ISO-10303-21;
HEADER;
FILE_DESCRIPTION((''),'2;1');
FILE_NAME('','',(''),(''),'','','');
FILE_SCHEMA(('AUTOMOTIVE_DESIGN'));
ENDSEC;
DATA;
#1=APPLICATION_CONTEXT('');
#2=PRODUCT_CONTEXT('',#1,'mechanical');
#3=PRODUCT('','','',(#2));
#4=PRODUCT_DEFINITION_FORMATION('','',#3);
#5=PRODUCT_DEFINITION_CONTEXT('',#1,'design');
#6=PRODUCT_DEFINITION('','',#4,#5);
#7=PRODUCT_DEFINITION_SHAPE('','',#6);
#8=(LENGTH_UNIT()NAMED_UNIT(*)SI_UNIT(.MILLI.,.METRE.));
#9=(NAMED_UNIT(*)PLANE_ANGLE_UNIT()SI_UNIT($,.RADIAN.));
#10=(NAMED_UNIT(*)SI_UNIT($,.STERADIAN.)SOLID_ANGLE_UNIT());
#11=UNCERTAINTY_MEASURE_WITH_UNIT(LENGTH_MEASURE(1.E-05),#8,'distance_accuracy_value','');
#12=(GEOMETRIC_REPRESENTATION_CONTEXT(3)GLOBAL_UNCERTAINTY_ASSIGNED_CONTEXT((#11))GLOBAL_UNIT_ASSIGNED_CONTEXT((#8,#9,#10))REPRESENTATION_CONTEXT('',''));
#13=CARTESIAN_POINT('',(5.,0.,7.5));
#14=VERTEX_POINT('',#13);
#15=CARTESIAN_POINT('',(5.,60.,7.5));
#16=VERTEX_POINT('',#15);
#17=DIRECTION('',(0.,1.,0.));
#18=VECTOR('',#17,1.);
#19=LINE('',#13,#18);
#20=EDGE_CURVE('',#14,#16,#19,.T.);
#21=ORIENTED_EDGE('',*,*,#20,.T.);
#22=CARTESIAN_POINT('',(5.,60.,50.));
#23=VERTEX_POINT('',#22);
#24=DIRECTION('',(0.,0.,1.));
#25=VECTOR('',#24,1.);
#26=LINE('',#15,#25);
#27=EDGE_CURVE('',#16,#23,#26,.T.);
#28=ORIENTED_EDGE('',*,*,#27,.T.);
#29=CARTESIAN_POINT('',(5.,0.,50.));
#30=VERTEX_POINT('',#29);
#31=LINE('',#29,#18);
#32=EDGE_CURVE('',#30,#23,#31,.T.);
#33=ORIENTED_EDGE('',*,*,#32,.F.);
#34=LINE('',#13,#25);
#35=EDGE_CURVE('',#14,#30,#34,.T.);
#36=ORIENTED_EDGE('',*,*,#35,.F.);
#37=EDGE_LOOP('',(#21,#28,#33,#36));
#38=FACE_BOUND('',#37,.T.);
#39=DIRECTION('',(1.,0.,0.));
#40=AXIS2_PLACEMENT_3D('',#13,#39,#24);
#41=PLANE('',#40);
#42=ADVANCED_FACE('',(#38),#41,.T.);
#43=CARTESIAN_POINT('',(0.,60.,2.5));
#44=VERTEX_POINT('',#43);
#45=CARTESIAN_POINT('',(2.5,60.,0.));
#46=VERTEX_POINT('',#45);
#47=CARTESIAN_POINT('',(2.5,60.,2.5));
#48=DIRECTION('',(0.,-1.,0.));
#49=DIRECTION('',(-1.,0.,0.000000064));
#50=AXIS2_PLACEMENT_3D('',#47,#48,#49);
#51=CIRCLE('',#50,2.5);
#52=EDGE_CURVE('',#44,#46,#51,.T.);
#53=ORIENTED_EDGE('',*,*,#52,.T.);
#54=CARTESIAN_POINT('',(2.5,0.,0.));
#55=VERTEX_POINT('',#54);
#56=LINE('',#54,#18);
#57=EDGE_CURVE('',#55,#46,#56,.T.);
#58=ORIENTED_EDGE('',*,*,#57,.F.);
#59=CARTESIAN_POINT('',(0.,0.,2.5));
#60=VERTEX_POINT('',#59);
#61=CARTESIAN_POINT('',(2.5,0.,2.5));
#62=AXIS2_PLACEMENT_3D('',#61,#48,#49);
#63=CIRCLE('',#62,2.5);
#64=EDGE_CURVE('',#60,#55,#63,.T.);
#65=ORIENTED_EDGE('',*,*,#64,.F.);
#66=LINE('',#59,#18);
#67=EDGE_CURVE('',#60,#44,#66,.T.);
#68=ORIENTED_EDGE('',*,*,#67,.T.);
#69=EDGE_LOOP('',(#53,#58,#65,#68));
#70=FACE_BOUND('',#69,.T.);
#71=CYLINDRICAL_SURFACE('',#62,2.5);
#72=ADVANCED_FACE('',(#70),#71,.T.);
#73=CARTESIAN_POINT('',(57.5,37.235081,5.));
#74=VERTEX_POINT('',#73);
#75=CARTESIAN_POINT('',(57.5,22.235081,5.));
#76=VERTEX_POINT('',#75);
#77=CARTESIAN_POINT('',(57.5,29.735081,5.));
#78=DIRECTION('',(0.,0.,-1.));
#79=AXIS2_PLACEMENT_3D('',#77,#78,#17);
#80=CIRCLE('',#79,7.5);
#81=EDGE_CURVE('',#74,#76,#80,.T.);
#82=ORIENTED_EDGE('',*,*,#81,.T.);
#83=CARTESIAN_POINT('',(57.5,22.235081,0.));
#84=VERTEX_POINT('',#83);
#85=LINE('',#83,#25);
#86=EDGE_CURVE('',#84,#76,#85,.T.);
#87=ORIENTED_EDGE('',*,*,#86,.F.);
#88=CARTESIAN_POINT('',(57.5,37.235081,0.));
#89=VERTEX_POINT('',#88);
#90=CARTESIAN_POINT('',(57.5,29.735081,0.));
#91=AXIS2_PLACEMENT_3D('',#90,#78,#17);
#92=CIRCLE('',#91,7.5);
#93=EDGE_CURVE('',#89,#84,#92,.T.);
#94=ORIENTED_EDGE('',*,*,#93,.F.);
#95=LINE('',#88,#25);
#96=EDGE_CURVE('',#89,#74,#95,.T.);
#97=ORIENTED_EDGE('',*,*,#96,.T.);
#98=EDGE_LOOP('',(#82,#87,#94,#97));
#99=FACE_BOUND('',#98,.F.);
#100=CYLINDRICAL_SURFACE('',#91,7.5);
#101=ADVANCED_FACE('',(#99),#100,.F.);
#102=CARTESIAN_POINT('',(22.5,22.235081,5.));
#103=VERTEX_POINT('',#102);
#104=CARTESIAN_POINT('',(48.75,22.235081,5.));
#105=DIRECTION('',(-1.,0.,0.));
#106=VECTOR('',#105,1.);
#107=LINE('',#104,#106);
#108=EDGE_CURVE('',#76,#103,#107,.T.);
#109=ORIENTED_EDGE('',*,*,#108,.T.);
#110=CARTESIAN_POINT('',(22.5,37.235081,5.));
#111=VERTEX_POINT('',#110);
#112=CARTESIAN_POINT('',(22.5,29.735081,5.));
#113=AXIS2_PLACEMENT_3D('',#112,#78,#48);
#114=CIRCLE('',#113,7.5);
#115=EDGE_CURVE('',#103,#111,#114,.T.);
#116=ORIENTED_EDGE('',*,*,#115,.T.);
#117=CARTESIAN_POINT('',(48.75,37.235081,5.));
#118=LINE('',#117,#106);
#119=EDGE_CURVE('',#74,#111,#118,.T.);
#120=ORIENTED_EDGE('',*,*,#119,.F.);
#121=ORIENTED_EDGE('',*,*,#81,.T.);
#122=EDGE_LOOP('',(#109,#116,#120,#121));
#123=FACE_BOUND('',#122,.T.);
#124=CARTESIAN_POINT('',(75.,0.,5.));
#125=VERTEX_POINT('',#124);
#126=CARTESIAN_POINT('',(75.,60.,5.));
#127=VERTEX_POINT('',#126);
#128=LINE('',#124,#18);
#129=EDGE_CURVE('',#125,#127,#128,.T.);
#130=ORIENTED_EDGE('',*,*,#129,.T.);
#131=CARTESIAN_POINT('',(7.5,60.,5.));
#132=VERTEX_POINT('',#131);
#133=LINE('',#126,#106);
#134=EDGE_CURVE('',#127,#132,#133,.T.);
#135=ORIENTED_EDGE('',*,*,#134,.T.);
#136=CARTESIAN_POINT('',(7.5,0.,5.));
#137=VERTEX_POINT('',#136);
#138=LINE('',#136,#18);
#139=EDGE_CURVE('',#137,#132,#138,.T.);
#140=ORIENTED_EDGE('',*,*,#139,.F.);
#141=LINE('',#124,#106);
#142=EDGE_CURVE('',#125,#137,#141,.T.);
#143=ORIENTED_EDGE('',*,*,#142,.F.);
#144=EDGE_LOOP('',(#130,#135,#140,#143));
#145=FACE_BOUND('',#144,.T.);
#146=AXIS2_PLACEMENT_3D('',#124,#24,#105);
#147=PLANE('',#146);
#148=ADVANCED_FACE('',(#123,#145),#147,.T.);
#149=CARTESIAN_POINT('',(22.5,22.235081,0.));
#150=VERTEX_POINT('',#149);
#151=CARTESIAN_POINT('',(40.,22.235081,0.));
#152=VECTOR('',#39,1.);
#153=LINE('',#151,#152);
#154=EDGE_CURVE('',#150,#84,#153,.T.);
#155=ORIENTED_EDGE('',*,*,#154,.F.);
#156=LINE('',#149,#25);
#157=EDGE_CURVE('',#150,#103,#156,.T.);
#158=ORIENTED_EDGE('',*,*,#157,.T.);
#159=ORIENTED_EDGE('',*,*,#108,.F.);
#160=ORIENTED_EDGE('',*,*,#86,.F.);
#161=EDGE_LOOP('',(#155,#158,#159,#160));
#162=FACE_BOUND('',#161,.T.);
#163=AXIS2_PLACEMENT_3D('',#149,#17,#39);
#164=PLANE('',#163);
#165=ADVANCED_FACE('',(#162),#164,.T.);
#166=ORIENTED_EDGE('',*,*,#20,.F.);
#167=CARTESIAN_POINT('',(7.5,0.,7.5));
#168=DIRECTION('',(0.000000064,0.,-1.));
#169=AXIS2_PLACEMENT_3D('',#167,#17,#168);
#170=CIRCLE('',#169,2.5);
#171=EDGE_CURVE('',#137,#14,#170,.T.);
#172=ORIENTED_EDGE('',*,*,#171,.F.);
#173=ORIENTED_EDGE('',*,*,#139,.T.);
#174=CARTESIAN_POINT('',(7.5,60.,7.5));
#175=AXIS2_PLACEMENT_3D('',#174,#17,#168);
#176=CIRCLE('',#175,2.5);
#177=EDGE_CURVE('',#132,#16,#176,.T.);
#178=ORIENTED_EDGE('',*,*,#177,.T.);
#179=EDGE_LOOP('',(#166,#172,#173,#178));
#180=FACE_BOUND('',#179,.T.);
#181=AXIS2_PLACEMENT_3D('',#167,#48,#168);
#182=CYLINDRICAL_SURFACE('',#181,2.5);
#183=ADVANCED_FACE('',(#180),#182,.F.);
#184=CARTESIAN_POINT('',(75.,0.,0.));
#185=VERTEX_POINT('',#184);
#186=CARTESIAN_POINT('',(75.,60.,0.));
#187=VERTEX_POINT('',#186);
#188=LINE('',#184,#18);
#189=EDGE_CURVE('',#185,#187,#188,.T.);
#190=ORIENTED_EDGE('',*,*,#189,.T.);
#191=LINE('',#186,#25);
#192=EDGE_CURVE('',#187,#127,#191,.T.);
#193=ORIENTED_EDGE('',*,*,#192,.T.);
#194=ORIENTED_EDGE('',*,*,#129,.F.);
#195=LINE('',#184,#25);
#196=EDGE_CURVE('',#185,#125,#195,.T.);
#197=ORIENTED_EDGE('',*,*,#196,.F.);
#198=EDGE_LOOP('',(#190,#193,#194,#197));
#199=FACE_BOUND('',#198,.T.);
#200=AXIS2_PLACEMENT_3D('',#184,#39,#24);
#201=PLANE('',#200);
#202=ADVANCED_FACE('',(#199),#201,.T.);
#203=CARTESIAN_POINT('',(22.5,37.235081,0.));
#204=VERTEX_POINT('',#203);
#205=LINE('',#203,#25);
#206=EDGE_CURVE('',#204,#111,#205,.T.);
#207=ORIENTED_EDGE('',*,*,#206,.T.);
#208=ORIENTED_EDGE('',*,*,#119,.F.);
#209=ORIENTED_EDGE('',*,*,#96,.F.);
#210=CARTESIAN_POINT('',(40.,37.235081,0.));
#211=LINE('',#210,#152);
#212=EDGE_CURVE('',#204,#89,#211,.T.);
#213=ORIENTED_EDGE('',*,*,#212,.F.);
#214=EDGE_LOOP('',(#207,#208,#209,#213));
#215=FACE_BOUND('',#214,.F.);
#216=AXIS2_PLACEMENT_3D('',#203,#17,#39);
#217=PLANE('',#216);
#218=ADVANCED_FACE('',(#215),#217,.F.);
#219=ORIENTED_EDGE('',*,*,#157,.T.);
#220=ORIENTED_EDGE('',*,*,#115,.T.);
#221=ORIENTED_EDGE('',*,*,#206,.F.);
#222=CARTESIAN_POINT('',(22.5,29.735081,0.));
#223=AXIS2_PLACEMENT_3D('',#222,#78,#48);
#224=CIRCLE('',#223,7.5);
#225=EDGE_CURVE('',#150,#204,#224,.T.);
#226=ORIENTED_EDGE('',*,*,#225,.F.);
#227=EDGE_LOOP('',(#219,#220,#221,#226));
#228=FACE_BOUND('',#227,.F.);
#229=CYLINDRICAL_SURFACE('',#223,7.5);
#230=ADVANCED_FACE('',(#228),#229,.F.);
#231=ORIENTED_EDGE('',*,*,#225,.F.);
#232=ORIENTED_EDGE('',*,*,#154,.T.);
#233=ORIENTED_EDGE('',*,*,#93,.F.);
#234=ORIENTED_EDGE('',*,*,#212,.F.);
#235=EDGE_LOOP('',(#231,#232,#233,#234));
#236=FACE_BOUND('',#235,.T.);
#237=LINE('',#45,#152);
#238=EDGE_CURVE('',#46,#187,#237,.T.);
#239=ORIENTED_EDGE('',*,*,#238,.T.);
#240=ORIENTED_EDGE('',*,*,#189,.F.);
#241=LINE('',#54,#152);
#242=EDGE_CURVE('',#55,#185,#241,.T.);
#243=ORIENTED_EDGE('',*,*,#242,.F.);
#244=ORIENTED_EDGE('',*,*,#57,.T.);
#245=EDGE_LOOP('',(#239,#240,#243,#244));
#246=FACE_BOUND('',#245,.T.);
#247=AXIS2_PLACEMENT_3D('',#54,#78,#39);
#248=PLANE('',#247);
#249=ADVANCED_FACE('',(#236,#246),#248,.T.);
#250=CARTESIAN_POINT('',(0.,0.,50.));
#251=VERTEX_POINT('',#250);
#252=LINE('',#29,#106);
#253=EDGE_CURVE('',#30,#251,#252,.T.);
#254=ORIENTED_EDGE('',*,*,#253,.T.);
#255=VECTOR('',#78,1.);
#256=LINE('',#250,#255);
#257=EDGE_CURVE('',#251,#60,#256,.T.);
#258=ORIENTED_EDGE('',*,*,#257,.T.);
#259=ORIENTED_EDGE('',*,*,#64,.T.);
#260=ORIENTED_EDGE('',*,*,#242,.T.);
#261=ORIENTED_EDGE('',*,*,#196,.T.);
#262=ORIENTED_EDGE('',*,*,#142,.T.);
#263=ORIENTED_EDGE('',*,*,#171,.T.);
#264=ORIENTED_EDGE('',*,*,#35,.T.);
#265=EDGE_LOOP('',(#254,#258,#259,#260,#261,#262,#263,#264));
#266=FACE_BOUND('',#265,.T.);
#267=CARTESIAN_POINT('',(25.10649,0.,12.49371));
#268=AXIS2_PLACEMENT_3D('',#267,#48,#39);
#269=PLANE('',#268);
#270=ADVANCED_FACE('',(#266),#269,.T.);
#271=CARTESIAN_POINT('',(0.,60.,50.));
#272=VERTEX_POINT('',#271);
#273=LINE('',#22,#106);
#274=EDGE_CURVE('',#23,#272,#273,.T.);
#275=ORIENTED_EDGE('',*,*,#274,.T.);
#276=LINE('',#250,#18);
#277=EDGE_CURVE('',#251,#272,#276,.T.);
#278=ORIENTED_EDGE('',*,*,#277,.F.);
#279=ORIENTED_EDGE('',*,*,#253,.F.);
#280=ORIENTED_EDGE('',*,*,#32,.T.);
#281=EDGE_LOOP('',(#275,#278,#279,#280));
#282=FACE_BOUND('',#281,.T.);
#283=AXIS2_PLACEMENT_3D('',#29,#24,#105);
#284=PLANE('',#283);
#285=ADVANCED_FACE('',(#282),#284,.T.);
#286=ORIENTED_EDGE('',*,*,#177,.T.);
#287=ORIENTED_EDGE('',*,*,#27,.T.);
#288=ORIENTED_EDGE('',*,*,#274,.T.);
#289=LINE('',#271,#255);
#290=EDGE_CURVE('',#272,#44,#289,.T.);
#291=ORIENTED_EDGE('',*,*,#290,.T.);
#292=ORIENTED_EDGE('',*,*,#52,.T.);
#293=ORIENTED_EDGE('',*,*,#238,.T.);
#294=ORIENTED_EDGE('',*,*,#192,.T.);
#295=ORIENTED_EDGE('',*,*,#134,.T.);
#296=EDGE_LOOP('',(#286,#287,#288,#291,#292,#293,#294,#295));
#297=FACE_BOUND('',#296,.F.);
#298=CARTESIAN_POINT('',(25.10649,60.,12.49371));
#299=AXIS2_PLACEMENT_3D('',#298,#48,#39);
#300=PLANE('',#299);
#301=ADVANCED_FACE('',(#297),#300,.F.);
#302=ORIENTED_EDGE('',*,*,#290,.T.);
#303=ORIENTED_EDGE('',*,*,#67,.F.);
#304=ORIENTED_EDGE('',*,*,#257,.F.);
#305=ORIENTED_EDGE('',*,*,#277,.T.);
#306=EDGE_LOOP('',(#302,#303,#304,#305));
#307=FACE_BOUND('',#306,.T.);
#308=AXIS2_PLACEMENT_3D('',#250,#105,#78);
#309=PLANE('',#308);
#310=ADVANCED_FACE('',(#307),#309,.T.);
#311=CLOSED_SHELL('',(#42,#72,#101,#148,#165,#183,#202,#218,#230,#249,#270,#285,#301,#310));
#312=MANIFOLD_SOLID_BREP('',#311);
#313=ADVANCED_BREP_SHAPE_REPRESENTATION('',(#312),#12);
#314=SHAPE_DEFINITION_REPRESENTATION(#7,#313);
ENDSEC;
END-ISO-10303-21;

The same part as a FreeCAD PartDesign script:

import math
import FreeCAD as App
import Part
import Sketcher
from FreeCAD import Vector
Q = App.Units.Quantity

doc = App.newDocument("Part")
params = doc.addObject("Spreadsheet::Sheet", "Params")
for row, (alias, value) in enumerate([
    ("sketch1_radius", "2.5 mm"),
    ("sketch1_width", "5 mm"),
    ("sketch1_width2", "72.5 mm"),
    ("sketch1_height", "47.5 mm"),
    ("pad1_length", "60 mm"),
    ("sketch2_radius", "7.5 mm"),
    ("sketch2_width", "35 mm"),
], start=1):
    params.set(f"A{row}", alias)
    params.set(f"B{row}", "=" + value)
    params.setAlias(f"B{row}", alias)

body = doc.addObject("PartDesign::Body", "Body")

# Sketch on XZ plane
sketch1 = body.newObject("Sketcher::SketchObject", "Sketch")
sketch1.AttachmentSupport = (doc.getObject("XZ_Plane"), [""])
sketch1.MapMode = "FlatFace"
sketch1.addGeometry(Part.LineSegment(Vector(5, 50, 0), Vector(0, 50, 0)), False)
sketch1.addGeometry(Part.LineSegment(Vector(0, 50, 0), Vector(0, 2.5, 0)), False)
sketch1.addGeometry(Part.ArcOfCircle(Part.Circle(Vector(2.5, 2.5, 0), Vector(0, 0, 1), 2.5), math.radians(180), math.radians(270)), False)
sketch1.addGeometry(Part.LineSegment(Vector(2.5, 0, 0), Vector(75, 0, 0)), False)
sketch1.addGeometry(Part.LineSegment(Vector(75, 0, 0), Vector(75, 5, 0)), False)
sketch1.addGeometry(Part.LineSegment(Vector(75, 5, 0), Vector(7.5, 5, 0)), False)
sketch1.addGeometry(Part.ArcOfCircle(Part.Circle(Vector(7.5, 7.5, 0), Vector(0, 0, 1), 2.5), math.radians(180), math.radians(270)), False)
sketch1.addGeometry(Part.LineSegment(Vector(5, 7.5, 0), Vector(5, 50, 0)), False)
sketch1.addConstraint(Sketcher.Constraint("Coincident", 0, 2, 1, 1))
sketch1.addConstraint(Sketcher.Constraint("Tangent", 1, 2, 2, 1))
sketch1.addConstraint(Sketcher.Constraint("Tangent", 2, 2, 3, 1))
sketch1.addConstraint(Sketcher.Constraint("Coincident", 3, 2, 4, 1))
sketch1.addConstraint(Sketcher.Constraint("Coincident", 4, 2, 5, 1))
sketch1.addConstraint(Sketcher.Constraint("Tangent", 5, 2, 6, 2))
sketch1.addConstraint(Sketcher.Constraint("Tangent", 6, 1, 7, 1))
sketch1.addConstraint(Sketcher.Constraint("Coincident", 7, 2, 0, 1))
sketch1.addConstraint(Sketcher.Constraint("Horizontal", 0))
sketch1.addConstraint(Sketcher.Constraint("Vertical", 1))
sketch1.addConstraint(Sketcher.Constraint("Horizontal", 3))
sketch1.addConstraint(Sketcher.Constraint("Vertical", 4))
sketch1.addConstraint(Sketcher.Constraint("Horizontal", 5))
sketch1.addConstraint(Sketcher.Constraint("Vertical", 7))
sketch1.addConstraint(Sketcher.Constraint("Equal", 2, 6))
sketch1.addConstraint(Sketcher.Constraint("PointOnObject", 0, 2, -2))
sketch1.addConstraint(Sketcher.Constraint("PointOnObject", 2, 2, -1))
sketch1.addConstraint(Sketcher.Constraint("Equal", 0, 4))
sketch1.addConstraint(Sketcher.Constraint("Radius", 2, Q("2.5 mm")))
sketch1.addConstraint(Sketcher.Constraint("DistanceX", 0, 2, 0, 1, Q("5 mm")))
sketch1.addConstraint(Sketcher.Constraint("DistanceX", 3, 1, 3, 2, Q("72.5 mm")))
sketch1.addConstraint(Sketcher.Constraint("DistanceY", 1, 2, 1, 1, Q("47.5 mm")))
sketch1.setExpression("Constraints[18]", "Params.sketch1_radius")
sketch1.setExpression("Constraints[19]", "Params.sketch1_width")
sketch1.setExpression("Constraints[20]", "Params.sketch1_width2")
sketch1.setExpression("Constraints[21]", "Params.sketch1_height")
pad1 = body.newObject("PartDesign::Pad", "Pad")
pad1.Profile = sketch1
pad1.setExpression("Length", "Params.pad1_length")
pad1.Reversed = True

# Sketch on XY plane
sketch2 = body.newObject("Sketcher::SketchObject", "Sketch001")
sketch2.AttachmentSupport = (doc.getObject("XY_Plane"), [""])
sketch2.MapMode = "FlatFace"
sketch2.addGeometry(Part.LineSegment(Vector(22, 37, 0), Vector(58, 37, 0)), False)
sketch2.addGeometry(Part.ArcOfCircle(Part.Circle(Vector(58, 30, 0), Vector(0, 0, 1), 8), math.radians(-90), math.radians(90)), False)
sketch2.addGeometry(Part.LineSegment(Vector(58, 22, 0), Vector(22, 22, 0)), False)
sketch2.addGeometry(Part.ArcOfCircle(Part.Circle(Vector(22, 30, 0), Vector(0, 0, 1), 8), math.radians(90), math.radians(270)), False)
sketch2.addConstraint(Sketcher.Constraint("Tangent", 0, 2, 1, 2))
sketch2.addConstraint(Sketcher.Constraint("Tangent", 1, 1, 2, 1))
sketch2.addConstraint(Sketcher.Constraint("Tangent", 2, 2, 3, 2))
sketch2.addConstraint(Sketcher.Constraint("Tangent", 3, 1, 0, 1))
sketch2.addConstraint(Sketcher.Constraint("Horizontal", 0))
sketch2.addConstraint(Sketcher.Constraint("Horizontal", 2))
sketch2.addConstraint(Sketcher.Constraint("Radius", 1, Q("7.5 mm")))
sketch2.addConstraint(Sketcher.Constraint("DistanceX", 0, 1, 0, 2, Q("35 mm")))
sketch2.addConstraint(Sketcher.Constraint("DistanceX", -1, 1, 1, 3, Q("57.5 mm")))
sketch2.addConstraint(Sketcher.Constraint("DistanceY", -1, 1, 1, 3, Q("29.735081 mm")))
sketch2.setExpression("Constraints[6]", "Params.sketch2_radius")
sketch2.setExpression("Constraints[7]", "Params.sketch2_width")
pocket1 = body.newObject("PartDesign::Pocket", "Pocket")
pocket1.Profile = sketch2
pocket1.Type = "ThroughAll"
pocket1.Reversed = True

doc.recompute()
